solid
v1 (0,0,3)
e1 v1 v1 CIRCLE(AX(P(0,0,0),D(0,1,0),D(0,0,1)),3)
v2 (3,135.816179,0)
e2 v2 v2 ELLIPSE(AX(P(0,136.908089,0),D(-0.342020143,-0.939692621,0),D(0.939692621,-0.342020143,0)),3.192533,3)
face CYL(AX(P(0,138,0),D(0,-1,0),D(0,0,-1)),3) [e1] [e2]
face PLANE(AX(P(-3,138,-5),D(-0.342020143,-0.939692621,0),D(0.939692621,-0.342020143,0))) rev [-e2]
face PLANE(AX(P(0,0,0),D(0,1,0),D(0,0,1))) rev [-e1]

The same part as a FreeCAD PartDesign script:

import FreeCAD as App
import Part
import Sketcher

V = App.Vector
Q = App.Units.Quantity


def add_polygon(sketch, points):
    """Adds a closed chain of lines whose ends are joined by coincident constraints."""
    first, n = sketch.GeometryCount, len(points)
    for a, b in zip(points, points[1:] + points[:1]):
        sketch.addGeometry(Part.LineSegment(App.Vector(*a, 0), App.Vector(*b, 0)), False)
    for i in range(n):
        sketch.addConstraint(Sketcher.Constraint("Coincident", first + i, 2, first + (i + 1) % n, 1))

doc = App.newDocument("Part")
body = doc.addObject("PartDesign::Body", "Body")

sketch1 = body.newObject("Sketcher::SketchObject", "Sketch")
sketch1.AttachmentSupport = (doc.getObject("XZ_Plane"), [""])
sketch1.MapMode = "FlatFace"
sketch1.addGeometry(Part.Circle(V(0, 0, 0), V(0, 0, 1), 3), False)
sketch1.addConstraint([
    Sketcher.Constraint("Coincident", 0, 3, -1, 1),
    Sketcher.Constraint("Diameter", 0, 6.0),
])
pad1 = body.newObject("PartDesign::Pad", "Pad")
pad1.Profile = sketch1
pad1.Length = 138
pad1.Reversed = True

sketch2 = body.newObject("Sketcher::SketchObject", "Sketch001")
sketch2.AttachmentSupport = (doc.getObject("XY_Plane"), [""])
sketch2.MapMode = "FlatFace"
add_polygon(sketch2, [(-3, 138), (3, 135.816179), (3, 138)])
sketch2.addConstraint([
    Sketcher.Constraint("Vertical", 1),
    Sketcher.Constraint("Horizontal", 2),
    Sketcher.Constraint("DistanceX", 2, 2, 2, 1, 6.0),
    Sketcher.Constraint("Angle", 0, Q("-20 deg")),
    Sketcher.Constraint("DistanceX", -1, 1, 0, 2, 3.0),
    Sketcher.Constraint("DistanceY", -1, 1, 1, 2, 138.0),
])
pocket1 = body.newObject("PartDesign::Pocket", "Pocket")
pocket1.Profile = sketch2
pocket1.Length = 10
pocket1.Midplane = True

doc.recompute()
